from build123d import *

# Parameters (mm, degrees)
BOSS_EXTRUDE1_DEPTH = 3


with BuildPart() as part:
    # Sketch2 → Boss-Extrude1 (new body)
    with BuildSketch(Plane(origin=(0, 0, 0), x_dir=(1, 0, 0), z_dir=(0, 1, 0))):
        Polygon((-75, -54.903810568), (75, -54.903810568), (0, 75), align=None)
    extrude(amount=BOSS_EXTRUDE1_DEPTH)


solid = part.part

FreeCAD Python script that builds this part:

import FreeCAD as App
import Part
import Sketcher
Q = App.Units.Quantity

doc = App.newDocument("Part")
body = doc.addObject("PartDesign::Body", "Body")

# Sketch on XZ plane
sketch1 = body.newObject("Sketcher::SketchObject", "Sketch")
sketch1.AttachmentSupport = (doc.getObject("XZ_Plane"), [""])
sketch1.MapMode = "FlatFace"
sketch1.addGeometry(Part.LineSegment(App.Vector(-75, 54.903811, 0), App.Vector(75, 54.903811, 0)), False)
sketch1.addGeometry(Part.LineSegment(App.Vector(75, 54.903811, 0), App.Vector(0, -75, 0)), False)
sketch1.addGeometry(Part.LineSegment(App.Vector(0, -75, 0), App.Vector(-75, 54.903811, 0)), False)
sketch1.addConstraint(Sketcher.Constraint("Coincident", 0, 2, 1, 1))
sketch1.addConstraint(Sketcher.Constraint("Coincident", 1, 2, 2, 1))
sketch1.addConstraint(Sketcher.Constraint("Coincident", 2, 2, 0, 1))
sketch1.addConstraint(Sketcher.Constraint("Horizontal", 0))
sketch1.addConstraint(Sketcher.Constraint("PointOnObject", 1, 2, -2))
sketch1.addConstraint(Sketcher.Constraint("Equal", 1, 2))
sketch1.addConstraint(Sketcher.Constraint("DistanceX", 0, 1, 0, 2, 150.0))
sketch1.addConstraint(Sketcher.Constraint("Angle", 1, Q("-120 deg")))
sketch1.addConstraint(Sketcher.Constraint("DistanceY", 1, 2, -1, 1, 75.0))
pad1 = body.newObject("PartDesign::Pad", "Pad")
pad1.Profile = sketch1
pad1.Length = 3
pad1.Reversed = True

doc.recompute()
